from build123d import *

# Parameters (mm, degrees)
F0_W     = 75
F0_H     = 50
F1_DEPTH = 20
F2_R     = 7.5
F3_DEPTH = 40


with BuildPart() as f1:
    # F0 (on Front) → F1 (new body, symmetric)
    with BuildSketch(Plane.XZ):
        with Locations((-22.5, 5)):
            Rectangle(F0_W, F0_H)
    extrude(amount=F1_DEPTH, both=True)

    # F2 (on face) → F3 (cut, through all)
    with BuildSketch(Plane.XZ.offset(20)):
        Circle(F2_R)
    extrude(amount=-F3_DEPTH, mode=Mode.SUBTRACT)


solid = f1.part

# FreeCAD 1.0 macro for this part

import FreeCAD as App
import Part
import Sketcher

V = App.Vector
Q = App.Units.Quantity

doc = App.newDocument("Part")
body = doc.addObject("PartDesign::Body", "Body")

# Sketch on XZ plane
sketch1 = doc.addObject("Sketcher::SketchObject", "Sketch")
body.addObject(sketch1)
sketch1.AttachmentSupport = (doc.XZ_Plane, [""])
sketch1.MapMode = "FlatFace"
sketch1.addGeometry(Part.LineSegment(V(-60, 30, 0), V(-60, -20, 0)), False)
sketch1.addGeometry(Part.LineSegment(V(-60, -20, 0), V(15, -20, 0)), False)
sketch1.addGeometry(Part.LineSegment(V(15, -20, 0), V(15, 30, 0)), False)
sketch1.addGeometry(Part.LineSegment(V(15, 30, 0), V(-60, 30, 0)), False)
sketch1.addConstraint(Sketcher.Constraint("Coincident", 0, 2, 1, 1))
sketch1.addConstraint(Sketcher.Constraint("Coincident", 1, 2, 2, 1))
sketch1.addConstraint(Sketcher.Constraint("Coincident", 2, 2, 3, 1))
sketch1.addConstraint(Sketcher.Constraint("Coincident", 3, 2, 0, 1))
sketch1.addConstraint(Sketcher.Constraint("Vertical", 0))
sketch1.addConstraint(Sketcher.Constraint("Horizontal", 1))
sketch1.addConstraint(Sketcher.Constraint("Vertical", 2))
sketch1.addConstraint(Sketcher.Constraint("Horizontal", 3))
sketch1.addConstraint(Sketcher.Constraint("DistanceX", 1, 1, 1, 2, Q("75 mm")))
sketch1.addConstraint(Sketcher.Constraint("DistanceY", 0, 2, 0, 1, Q("50 mm")))
sketch1.addConstraint(Sketcher.Constraint("DistanceX", 0, 2, -1, 1, Q("60 mm")))
sketch1.addConstraint(Sketcher.Constraint("DistanceY", 0, 2, -1, 1, Q("20 mm")))
pad1 = doc.addObject("PartDesign::Pad", "Pad")
body.addObject(pad1)
pad1.Profile = sketch1
pad1.Length = 40
pad1.Midplane = True

# Sketch on XZ plane
sketch2 = doc.addObject("Sketcher::SketchObject", "Sketch001")
body.addObject(sketch2)
sketch2.AttachmentSupport = (doc.XZ_Plane, [""])
sketch2.MapMode = "FlatFace"
sketch2.AttachmentOffset = App.Placement(V(0, 0, 20), App.Rotation())
sketch2.addGeometry(Part.Circle(V(0, 0, 0), V(0, 0, 1), 7.5), False)
sketch2.addConstraint(Sketcher.Constraint("Coincident", 0, 3, -1, 1))
sketch2.addConstraint(Sketcher.Constraint("Diameter", 0, Q("15 mm")))
pocket1 = doc.addObject("PartDesign::Pocket", "Pocket")
body.addObject(pocket1)
pocket1.Profile = sketch2
pocket1.Type = "ThroughAll"

doc.recompute()
